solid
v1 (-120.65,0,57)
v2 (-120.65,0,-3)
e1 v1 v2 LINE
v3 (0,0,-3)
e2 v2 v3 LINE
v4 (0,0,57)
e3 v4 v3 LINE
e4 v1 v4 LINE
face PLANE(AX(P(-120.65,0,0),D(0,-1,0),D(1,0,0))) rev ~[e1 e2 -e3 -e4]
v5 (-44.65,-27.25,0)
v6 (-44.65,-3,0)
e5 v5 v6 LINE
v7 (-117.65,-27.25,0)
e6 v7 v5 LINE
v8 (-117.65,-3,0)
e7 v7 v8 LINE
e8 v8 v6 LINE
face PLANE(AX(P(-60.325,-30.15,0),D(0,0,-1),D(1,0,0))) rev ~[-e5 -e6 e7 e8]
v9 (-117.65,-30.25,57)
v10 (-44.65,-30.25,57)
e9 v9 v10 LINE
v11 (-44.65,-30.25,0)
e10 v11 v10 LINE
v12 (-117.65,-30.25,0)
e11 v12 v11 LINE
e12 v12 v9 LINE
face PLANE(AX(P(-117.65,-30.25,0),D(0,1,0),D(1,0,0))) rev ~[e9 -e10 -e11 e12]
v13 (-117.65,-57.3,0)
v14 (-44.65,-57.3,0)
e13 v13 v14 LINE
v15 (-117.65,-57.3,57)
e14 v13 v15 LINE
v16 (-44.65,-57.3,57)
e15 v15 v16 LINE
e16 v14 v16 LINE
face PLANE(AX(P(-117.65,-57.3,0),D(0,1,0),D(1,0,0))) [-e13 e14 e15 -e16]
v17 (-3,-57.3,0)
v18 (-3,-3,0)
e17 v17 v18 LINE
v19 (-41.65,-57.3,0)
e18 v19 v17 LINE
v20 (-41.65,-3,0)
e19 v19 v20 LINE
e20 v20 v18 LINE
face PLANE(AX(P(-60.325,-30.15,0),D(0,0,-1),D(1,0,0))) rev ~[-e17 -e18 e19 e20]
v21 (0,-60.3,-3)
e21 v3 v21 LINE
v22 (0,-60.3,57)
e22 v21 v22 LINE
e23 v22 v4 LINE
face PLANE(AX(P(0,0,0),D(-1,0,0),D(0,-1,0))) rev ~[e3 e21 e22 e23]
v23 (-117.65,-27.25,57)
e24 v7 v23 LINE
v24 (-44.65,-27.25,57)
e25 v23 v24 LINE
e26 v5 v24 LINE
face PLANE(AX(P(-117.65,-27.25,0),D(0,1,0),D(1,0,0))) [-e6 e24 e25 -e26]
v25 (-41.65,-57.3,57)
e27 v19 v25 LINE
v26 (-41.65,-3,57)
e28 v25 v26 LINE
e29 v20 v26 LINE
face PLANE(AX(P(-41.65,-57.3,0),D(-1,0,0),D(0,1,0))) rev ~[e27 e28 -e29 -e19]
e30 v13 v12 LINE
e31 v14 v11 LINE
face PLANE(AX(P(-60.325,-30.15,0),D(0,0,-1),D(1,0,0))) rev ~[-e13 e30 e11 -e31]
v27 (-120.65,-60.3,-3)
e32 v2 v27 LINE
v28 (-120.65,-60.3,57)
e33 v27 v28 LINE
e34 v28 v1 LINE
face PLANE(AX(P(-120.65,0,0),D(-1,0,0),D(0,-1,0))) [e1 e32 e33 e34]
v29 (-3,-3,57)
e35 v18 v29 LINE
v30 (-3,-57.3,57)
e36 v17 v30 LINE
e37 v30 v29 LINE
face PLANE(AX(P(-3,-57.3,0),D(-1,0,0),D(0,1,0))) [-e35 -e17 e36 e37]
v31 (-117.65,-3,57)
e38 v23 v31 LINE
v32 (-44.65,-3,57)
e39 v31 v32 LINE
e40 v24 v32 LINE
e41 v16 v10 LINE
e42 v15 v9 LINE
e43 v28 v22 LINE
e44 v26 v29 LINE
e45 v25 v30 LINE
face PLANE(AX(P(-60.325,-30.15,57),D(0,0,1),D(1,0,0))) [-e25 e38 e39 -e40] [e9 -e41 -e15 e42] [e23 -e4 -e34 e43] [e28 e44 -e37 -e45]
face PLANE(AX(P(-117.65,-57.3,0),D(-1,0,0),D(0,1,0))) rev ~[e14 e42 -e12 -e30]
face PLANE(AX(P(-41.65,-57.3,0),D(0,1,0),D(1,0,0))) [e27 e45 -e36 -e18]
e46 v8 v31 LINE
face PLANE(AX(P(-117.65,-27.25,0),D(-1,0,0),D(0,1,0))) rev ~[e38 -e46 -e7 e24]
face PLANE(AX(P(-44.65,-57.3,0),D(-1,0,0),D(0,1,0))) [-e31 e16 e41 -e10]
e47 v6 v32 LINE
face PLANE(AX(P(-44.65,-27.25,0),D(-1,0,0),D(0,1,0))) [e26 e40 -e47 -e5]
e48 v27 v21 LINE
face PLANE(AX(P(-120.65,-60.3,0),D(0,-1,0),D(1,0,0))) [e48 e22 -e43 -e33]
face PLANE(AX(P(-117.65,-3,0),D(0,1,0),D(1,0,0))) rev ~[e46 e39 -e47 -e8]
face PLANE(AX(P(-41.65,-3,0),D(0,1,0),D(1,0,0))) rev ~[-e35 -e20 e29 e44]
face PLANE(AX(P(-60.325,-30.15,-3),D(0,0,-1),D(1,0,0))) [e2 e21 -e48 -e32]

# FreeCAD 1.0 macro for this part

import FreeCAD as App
import Part
import Sketcher
from FreeCAD import Vector
Q = App.Units.Quantity

doc = App.newDocument("Part")
body = doc.addObject("PartDesign::Body", "Body")

sketch1 = body.newObject("Sketcher::SketchObject", "Sketch")
sketch1.AttachmentSupport = (doc.getObject("XY_Plane"), [""])
sketch1.MapMode = "FlatFace"
sketch1.addGeometry(Part.LineSegment(Vector(-120.65, 0, 0), Vector(-120.65, -60.3, 0)), False)
sketch1.addGeometry(Part.LineSegment(Vector(-120.65, -60.3, 0), Vector(0, -60.3, 0)), False)
sketch1.addGeometry(Part.LineSegment(Vector(0, -60.3, 0), Vector(0, 0, 0)), False)
sketch1.addGeometry(Part.LineSegment(Vector(0, 0, 0), Vector(-120.65, 0, 0)), False)
sketch1.addGeometry(Part.LineSegment(Vector(-44.65, -57.3, 0), Vector(-117.65, -57.3, 0)), False)
sketch1.addGeometry(Part.LineSegment(Vector(-117.65, -57.3, 0), Vector(-117.65, -30.25, 0)), False)
sketch1.addGeometry(Part.LineSegment(Vector(-117.65, -30.25, 0), Vector(-44.65, -30.25, 0)), False)
sketch1.addGeometry(Part.LineSegment(Vector(-44.65, -30.25, 0), Vector(-44.65, -57.3, 0)), False)
sketch1.addGeometry(Part.LineSegment(Vector(-44.65, -27.25, 0), Vector(-117.65, -27.25, 0)), False)
sketch1.addGeometry(Part.LineSegment(Vector(-117.65, -27.25, 0), Vector(-117.65, -3, 0)), False)
sketch1.addGeometry(Part.LineSegment(Vector(-117.65, -3, 0), Vector(-44.65, -3, 0)), False)
sketch1.addGeometry(Part.LineSegment(Vector(-44.65, -3, 0), Vector(-44.65, -27.25, 0)), False)
sketch1.addGeometry(Part.LineSegment(Vector(-3, -57.3, 0), Vector(-41.65, -57.3, 0)), False)
sketch1.addGeometry(Part.LineSegment(Vector(-41.65, -57.3, 0), Vector(-41.65, -3, 0)), False)
sketch1.addGeometry(Part.LineSegment(Vector(-41.65, -3, 0), Vector(-3, -3, 0)), False)
sketch1.addGeometry(Part.LineSegment(Vector(-3, -3, 0), Vector(-3, -57.3, 0)), False)
sketch1.addConstraint(Sketcher.Constraint("Coincident", 0, 2, 1, 1))
sketch1.addConstraint(Sketcher.Constraint("Coincident", 1, 2, 2, 1))
sketch1.addConstraint(Sketcher.Constraint("Coincident", 2, 2, 3, 1))
sketch1.addConstraint(Sketcher.Constraint("Coincident", 3, 2, 0, 1))
sketch1.addConstraint(Sketcher.Constraint("Coincident", 4, 2, 5, 1))
sketch1.addConstraint(Sketcher.Constraint("Coincident", 5, 2, 6, 1))
sketch1.addConstraint(Sketcher.Constraint("Coincident", 6, 2, 7, 1))
sketch1.addConstraint(Sketcher.Constraint("Coincident", 7, 2, 4, 1))
sketch1.addConstraint(Sketcher.Constraint("Coincident", 8, 2, 9, 1))
sketch1.addConstraint(Sketcher.Constraint("Coincident", 9, 2, 10, 1))
sketch1.addConstraint(Sketcher.Constraint("Coincident", 10, 2, 11, 1))
sketch1.addConstraint(Sketcher.Constraint("Coincident", 11, 2, 8, 1))
sketch1.addConstraint(Sketcher.Constraint("Coincident", 12, 2, 13, 1))
sketch1.addConstraint(Sketcher.Constraint("Coincident", 13, 2, 14, 1))
sketch1.addConstraint(Sketcher.Constraint("Coincident", 14, 2, 15, 1))
sketch1.addConstraint(Sketcher.Constraint("Coincident", 15, 2, 12, 1))
sketch1.addConstraint(Sketcher.Constraint("Vertical", 0))
sketch1.addConstraint(Sketcher.Constraint("Horizontal", 1))
sketch1.addConstraint(Sketcher.Constraint("Vertical", 2))
sketch1.addConstraint(Sketcher.Constraint("Horizontal", 3))
sketch1.addConstraint(Sketcher.Constraint("Horizontal", 4))
sketch1.addConstraint(Sketcher.Constraint("Vertical", 5))
sketch1.addConstraint(Sketcher.Constraint("Horizontal", 6))
sketch1.addConstraint(Sketcher.Constraint("Vertical", 7))
sketch1.addConstraint(Sketcher.Constraint("Horizontal", 8))
sketch1.addConstraint(Sketcher.Constraint("Vertical", 9))
sketch1.addConstraint(Sketcher.Constraint("Horizontal", 10))
sketch1.addConstraint(Sketcher.Constraint("Vertical", 11))
sketch1.addConstraint(Sketcher.Constraint("Horizontal", 12))
sketch1.addConstraint(Sketcher.Constraint("Vertical", 13))
sketch1.addConstraint(Sketcher.Constraint("Horizontal", 14))
sketch1.addConstraint(Sketcher.Constraint("Vertical", 15))
sketch1.addConstraint(Sketcher.Constraint("Coincident", 2, 2, -1, 1))
sketch1.addConstraint(Sketcher.Constraint("Horizontal", 7, 2, 12, 2))
sketch1.addConstraint(Sketcher.Constraint("Horizontal", 10, 2, 13, 2))
sketch1.addConstraint(Sketcher.Constraint("Vertical", 5, 2, 8, 2))
sketch1.addConstraint(Sketcher.Constraint("Vertical", 7, 2, 10, 2))
sketch1.addConstraint(Sketcher.Constraint("DistanceX", 4, 2, 4, 1, Q("73 mm")))
sketch1.addConstraint(Sketcher.Constraint("DistanceY", 0, 2, 0, 1, Q("60.3 mm")))
sketch1.addConstraint(Sketcher.Constraint("DistanceY", 13, 1, 13, 2, Q("54.3 mm")))
sketch1.addConstraint(Sketcher.Constraint("DistanceY", 9, 2, -1, 1, Q("3 mm")))
sketch1.addConstraint(Sketcher.Constraint("DistanceX", 14, 2, -1, 1, Q("3 mm")))
sketch1.addConstraint(Sketcher.Constraint("DistanceX", 0, 2, 4, 2, Q("3 mm")))
sketch1.addConstraint(Sketcher.Constraint("DistanceY", 5, 2, 8, 2, Q("3 mm")))
sketch1.addConstraint(Sketcher.Constraint("DistanceX", 7, 2, 12, 2, Q("3 mm")))
sketch1.addConstraint(Sketcher.Constraint("DistanceX", 1, 1, 1, 2, Q("120.65 mm")))
sketch1.addConstraint(Sketcher.Constraint("DistanceY", 5, 1, 5, 2, Q("27.05 mm")))
pad1 = body.newObject("PartDesign::Pad", "Pad")
pad1.Profile = sketch1
pad1.Length = 57

sketch2 = body.newObject("Sketcher::SketchObject", "Sketch001")
sketch2.AttachmentSupport = (doc.getObject("XY_Plane"), [""])
sketch2.MapMode = "FlatFace"
sketch2.addGeometry(Part.LineSegment(Vector(-120.65, -60.3, 0), Vector(-120.65, 0, 0)), False)
sketch2.addGeometry(Part.LineSegment(Vector(-120.65, 0, 0), Vector(0, 0, 0)), False)
sketch2.addGeometry(Part.LineSegment(Vector(0, 0, 0), Vector(0, -60.3, 0)), False)
sketch2.addGeometry(Part.LineSegment(Vector(0, -60.3, 0), Vector(-120.65, -60.3, 0)), False)
sketch2.addConstraint(Sketcher.Constraint("Coincident", 0, 2, 1, 1))
sketch2.addConstraint(Sketcher.Constraint("Coincident", 1, 2, 2, 1))
sketch2.addConstraint(Sketcher.Constraint("Coincident", 2, 2, 3, 1))
sketch2.addConstraint(Sketcher.Constraint("Coincident", 3, 2, 0, 1))
sketch2.addConstraint(Sketcher.Constraint("Vertical", 0))
sketch2.addConstraint(Sketcher.Constraint("Horizontal", 1))
sketch2.addConstraint(Sketcher.Constraint("Vertical", 2))
sketch2.addConstraint(Sketcher.Constraint("Horizontal", 3))
sketch2.addConstraint(Sketcher.Constraint("Coincident", 1, 2, -1, 1))
sketch2.addConstraint(Sketcher.Constraint("DistanceY", 0, 1, 0, 2, Q("60.3 mm")))
sketch2.addConstraint(Sketcher.Constraint("DistanceX", 1, 1, 1, 2, Q("120.65 mm")))
pad2 = body.newObject("PartDesign::Pad", "Pad001")
pad2.Profile = sketch2
pad2.Length = 3
pad2.Reversed = True

doc.recompute()
